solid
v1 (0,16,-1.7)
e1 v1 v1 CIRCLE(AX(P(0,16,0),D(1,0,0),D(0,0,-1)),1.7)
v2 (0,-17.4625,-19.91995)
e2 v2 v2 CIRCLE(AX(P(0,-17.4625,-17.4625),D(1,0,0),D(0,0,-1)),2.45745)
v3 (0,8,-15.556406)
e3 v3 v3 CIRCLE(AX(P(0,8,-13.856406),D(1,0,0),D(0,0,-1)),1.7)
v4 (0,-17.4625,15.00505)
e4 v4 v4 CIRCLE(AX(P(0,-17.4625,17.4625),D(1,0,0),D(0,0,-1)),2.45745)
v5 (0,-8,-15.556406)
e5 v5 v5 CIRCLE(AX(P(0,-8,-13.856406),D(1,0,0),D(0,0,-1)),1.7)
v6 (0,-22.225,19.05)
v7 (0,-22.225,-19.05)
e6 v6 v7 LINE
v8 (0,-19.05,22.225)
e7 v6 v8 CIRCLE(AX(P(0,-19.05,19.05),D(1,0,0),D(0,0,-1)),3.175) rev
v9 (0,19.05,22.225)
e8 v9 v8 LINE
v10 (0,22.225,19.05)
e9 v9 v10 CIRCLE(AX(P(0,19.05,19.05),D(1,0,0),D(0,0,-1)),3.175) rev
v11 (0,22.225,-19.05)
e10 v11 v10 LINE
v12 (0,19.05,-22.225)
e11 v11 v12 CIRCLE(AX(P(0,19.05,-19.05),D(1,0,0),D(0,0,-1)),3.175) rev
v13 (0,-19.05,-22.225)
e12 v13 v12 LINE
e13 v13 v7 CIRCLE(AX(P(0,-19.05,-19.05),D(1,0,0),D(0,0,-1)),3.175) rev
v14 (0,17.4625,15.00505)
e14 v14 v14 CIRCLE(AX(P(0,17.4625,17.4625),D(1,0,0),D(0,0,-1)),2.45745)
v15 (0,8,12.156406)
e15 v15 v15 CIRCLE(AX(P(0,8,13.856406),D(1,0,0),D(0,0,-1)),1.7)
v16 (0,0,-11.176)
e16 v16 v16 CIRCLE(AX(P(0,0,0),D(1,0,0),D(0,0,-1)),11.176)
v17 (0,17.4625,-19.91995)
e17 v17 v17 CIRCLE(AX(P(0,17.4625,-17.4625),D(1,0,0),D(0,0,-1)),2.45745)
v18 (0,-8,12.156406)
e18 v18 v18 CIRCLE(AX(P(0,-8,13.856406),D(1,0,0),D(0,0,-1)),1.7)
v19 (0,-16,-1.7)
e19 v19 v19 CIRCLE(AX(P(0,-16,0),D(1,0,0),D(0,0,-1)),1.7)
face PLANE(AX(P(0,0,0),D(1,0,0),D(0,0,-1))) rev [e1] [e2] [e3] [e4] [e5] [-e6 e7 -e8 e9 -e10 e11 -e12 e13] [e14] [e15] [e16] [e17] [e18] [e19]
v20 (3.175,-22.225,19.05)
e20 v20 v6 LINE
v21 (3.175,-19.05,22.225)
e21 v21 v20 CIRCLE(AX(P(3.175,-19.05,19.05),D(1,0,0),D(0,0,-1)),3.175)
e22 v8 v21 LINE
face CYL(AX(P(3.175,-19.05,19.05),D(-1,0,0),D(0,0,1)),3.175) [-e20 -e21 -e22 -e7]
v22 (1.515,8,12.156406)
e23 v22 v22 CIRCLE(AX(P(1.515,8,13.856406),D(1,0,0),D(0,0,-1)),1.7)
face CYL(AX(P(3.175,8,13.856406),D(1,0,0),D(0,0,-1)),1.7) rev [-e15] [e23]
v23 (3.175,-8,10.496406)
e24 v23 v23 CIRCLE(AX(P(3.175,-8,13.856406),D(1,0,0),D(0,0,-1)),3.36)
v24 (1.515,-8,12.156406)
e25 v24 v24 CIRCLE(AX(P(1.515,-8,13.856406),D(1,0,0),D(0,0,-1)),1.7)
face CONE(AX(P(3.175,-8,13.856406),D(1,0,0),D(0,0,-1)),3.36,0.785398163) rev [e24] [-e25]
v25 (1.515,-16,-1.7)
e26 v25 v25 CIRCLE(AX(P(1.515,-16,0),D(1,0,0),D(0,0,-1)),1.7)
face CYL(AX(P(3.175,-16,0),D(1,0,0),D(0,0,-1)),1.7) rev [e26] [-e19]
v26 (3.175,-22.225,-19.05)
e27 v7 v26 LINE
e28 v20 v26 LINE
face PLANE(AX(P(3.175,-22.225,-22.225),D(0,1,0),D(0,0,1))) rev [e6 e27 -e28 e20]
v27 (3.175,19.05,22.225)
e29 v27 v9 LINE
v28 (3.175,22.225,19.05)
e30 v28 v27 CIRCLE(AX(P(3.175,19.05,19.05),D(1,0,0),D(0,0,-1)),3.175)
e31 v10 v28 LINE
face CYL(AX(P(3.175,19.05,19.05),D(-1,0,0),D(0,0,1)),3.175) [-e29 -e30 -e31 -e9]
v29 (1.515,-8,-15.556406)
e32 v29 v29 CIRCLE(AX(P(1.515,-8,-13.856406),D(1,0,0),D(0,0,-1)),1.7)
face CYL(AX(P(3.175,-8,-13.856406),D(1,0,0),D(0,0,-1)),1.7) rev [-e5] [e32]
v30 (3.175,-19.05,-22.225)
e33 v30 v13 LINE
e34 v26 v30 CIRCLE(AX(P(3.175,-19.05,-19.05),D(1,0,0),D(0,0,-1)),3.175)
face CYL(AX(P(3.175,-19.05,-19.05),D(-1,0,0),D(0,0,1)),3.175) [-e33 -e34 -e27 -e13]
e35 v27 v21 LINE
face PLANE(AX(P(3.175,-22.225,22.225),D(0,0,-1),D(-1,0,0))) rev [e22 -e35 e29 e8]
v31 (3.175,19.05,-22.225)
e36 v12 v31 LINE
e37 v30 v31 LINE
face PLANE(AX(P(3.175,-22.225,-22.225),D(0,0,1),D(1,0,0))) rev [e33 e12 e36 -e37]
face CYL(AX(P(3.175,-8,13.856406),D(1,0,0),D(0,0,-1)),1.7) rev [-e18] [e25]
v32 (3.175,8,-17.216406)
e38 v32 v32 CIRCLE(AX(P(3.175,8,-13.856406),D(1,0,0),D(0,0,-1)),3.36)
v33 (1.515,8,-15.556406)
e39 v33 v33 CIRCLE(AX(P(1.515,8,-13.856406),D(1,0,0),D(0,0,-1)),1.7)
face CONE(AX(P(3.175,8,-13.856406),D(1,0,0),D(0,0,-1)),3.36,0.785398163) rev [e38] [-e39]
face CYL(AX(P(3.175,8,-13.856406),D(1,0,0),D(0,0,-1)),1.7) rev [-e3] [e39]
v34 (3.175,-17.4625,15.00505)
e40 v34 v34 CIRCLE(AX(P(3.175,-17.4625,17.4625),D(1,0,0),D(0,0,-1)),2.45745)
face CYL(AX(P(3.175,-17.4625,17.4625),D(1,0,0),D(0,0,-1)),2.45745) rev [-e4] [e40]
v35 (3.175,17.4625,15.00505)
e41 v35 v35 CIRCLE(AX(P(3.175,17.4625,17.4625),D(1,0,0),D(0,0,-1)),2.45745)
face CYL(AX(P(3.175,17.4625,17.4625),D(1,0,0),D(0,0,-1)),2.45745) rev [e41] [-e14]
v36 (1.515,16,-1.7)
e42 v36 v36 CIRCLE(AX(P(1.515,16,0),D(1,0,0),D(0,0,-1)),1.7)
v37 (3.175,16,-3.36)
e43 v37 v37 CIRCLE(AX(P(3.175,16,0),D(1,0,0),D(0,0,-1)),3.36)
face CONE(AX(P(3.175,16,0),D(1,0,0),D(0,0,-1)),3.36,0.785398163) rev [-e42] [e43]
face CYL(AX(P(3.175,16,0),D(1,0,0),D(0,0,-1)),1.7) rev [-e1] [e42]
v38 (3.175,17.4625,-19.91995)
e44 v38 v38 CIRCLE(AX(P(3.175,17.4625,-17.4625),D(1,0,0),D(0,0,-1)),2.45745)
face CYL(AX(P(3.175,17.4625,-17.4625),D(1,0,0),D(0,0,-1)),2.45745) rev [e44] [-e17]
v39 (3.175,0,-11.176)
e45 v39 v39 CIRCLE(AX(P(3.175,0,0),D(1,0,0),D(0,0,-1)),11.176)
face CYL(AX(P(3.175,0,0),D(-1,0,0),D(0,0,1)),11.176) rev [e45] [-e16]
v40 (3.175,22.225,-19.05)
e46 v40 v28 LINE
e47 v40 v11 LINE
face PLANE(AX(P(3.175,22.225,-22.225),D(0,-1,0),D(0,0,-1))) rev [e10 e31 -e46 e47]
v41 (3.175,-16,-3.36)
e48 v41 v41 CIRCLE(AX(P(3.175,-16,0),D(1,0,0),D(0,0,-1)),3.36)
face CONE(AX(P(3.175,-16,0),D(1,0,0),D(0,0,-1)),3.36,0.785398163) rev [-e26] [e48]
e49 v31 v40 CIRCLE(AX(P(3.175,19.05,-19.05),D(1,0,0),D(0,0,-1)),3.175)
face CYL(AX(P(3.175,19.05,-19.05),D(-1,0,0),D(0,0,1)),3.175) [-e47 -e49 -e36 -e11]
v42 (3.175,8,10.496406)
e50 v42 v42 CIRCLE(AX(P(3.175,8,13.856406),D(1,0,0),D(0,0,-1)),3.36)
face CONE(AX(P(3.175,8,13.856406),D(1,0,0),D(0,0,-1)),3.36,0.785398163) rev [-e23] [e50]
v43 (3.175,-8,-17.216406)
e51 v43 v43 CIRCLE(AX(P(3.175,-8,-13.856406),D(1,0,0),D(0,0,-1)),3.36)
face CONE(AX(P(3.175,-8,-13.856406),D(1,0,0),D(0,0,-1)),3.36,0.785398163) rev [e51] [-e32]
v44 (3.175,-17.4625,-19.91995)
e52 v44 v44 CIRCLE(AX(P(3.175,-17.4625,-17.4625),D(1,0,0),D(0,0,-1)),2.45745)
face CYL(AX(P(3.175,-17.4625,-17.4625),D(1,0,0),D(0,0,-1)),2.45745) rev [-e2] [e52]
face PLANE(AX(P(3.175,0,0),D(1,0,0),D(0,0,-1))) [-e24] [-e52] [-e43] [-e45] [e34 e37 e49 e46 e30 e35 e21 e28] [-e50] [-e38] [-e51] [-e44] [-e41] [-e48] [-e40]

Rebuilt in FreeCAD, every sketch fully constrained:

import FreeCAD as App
import Part
import Sketcher

V = App.Vector
Q = App.Units.Quantity


def edges_at(feature, points):
    """Names of the edges that pass closest to the given points."""
    edges = feature.Shape.Edges
    near = lambda p: min(range(len(edges)), key=lambda i: edges[i].distToShape(Part.Vertex(*p))[0])
    return sorted({f"Edge{near(p) + 1}" for p in points})


def add_polygon(sketch, points):
    """Adds a closed chain of lines whose ends are joined by coincident constraints."""
    first, n = sketch.GeometryCount, len(points)
    for a, b in zip(points, points[1:] + points[:1]):
        sketch.addGeometry(Part.LineSegment(App.Vector(*a, 0), App.Vector(*b, 0)), False)
    for i in range(n):
        sketch.addConstraint(Sketcher.Constraint("Coincident", first + i, 2, first + (i + 1) % n, 1))

doc = App.newDocument("Part")
params = doc.addObject("Spreadsheet::Sheet", "Params")
for row, (alias, value) in enumerate([
    ("sketch1_diameter", "0.88 in"),
    ("sketch1_width", "1.75 in"),
    ("pad1_length", "0.125 in"),
    ("hole_diameter", "0.1935 in"),
    ("hole_depth", "0.125 in"),
    ("sketch3_width", "0.125 in"),
    ("groove_angle", "360 deg"),
    ("linearpattern_pitch", "16 mm"),
    ("linearpattern2_pitch", "27.712813 mm"),
    ("linearpattern3_pitch", "32 mm"),
    ("linearpattern4_pitch", "27.712813 mm"),
    ("linearpattern5_pitch", "16 mm"),
    ("fillet_radius", "0.125 in"),
], start=1):
    params.set(f"A{row}", alias)
    params.set(f"B{row}", "=" + value)
    params.setAlias(f"B{row}", alias)

body = doc.addObject("PartDesign::Body", "Body")

# Sketch on YZ plane
sketch1 = body.newObject("Sketcher::SketchObject", "Sketch")
sketch1.AttachmentSupport = (doc.getObject("YZ_Plane"), [""])
sketch1.MapMode = "FlatFace"
add_polygon(sketch1, [(22, 22), (-22, 22), (-22, -22), (22, -22)])  # lines 0-3
sketch1.addGeometry(Part.Circle(V(0, 0, 0), V(0, 0, 1), 11), False)  # 4
sketch1.addConstraint([
    Sketcher.Constraint("Horizontal", 0),
    Sketcher.Constraint("Vertical", 1),
    Sketcher.Constraint("Horizontal", 2),
    Sketcher.Constraint("Vertical", 3),
    Sketcher.Constraint("Coincident", 4, 3, -1, 1),
    Sketcher.Constraint("Symmetric", 0, 2, 2, 2, -1, 1),
    Sketcher.Constraint("Equal", 2, 1),
    Sketcher.Constraint("Diameter", 4, Q("0.88 in")),
    Sketcher.Constraint("DistanceX", 0, 2, 0, 1, Q("1.75 in")),
])
sketch1.setExpression("Constraints[11]", "Params.sketch1_diameter")
sketch1.setExpression("Constraints[12]", "Params.sketch1_width")
pad1 = body.newObject("PartDesign::Pad", "Pad")
pad1.Profile = sketch1
pad1.setExpression("Length", "Params.pad1_length")

# Sketch on YZ plane
sketch2 = body.newObject("Sketcher::SketchObject", "Sketch001")
sketch2.AttachmentSupport = (doc.getObject("YZ_Plane"), [""])
sketch2.MapMode = "FlatFace"
sketch2.AttachmentOffset = App.Placement(V(0, 0, 0.125 * 25.4), App.Rotation())
sketch2.addGeometry([
    Part.Circle(V(17.5, 17.5, 0), V(0, 0, 1), 2.5),
    Part.Circle(V(17.5, -17.5, 0), V(0, 0, 1), 2.5),
    Part.Circle(V(-17.5, -17.5, 0), V(0, 0, 1), 2.5),
    Part.Circle(V(-17.5, 17.5, 0), V(0, 0, 1), 2.5),
], False)
sketch2.addConstraint([
    Sketcher.Constraint("Equal", 0, 1),
    Sketcher.Constraint("Equal", 1, 2),
    Sketcher.Constraint("Equal", 2, 3),
    Sketcher.Constraint("Symmetric", 0, 3, 2, 3, -1, 1),
    Sketcher.Constraint("Symmetric", 1, 3, 3, 3, -1, 1),
    Sketcher.Constraint("Symmetric", 1, 3, 2, 3, -2),
    Sketcher.Constraint("Diameter", 0, Q("0.1935 in")),
    Sketcher.Constraint("DistanceX", -1, 1, 0, 3, Q("0.6875 in")),
    Sketcher.Constraint("DistanceY", -1, 1, 0, 3, Q("0.6875 in")),
])
doc.recompute()
hole = body.newObject("PartDesign::Hole", "Hole")
hole.Profile = sketch2
hole.ThreadType = "None"
hole.setExpression("Diameter", "Params.hole_diameter")
hole.DepthType = "Dimension"
hole.setExpression("Depth", "Params.hole_depth")
hole.DrillPoint = "Flat"

# Sketch on XZ plane
sketch3 = body.newObject("Sketcher::SketchObject", "Sketch002")
sketch3.AttachmentSupport = (doc.getObject("XZ_Plane"), [""])
sketch3.MapMode = "FlatFace"
sketch3.AttachmentOffset = App.Placement(V(0, 0, -8), App.Rotation())
add_polygon(sketch3, [(0, 13.9), (3.2, 13.9), (3.2, 10.5), (1.5, 12.2), (0, 12.2)])  # lines 0-4
sketch3.addGeometry(Part.LineSegment(V(3.2, 13.9, 0), V(0, 13.9, 0)), True)  # axis
sketch3.addConstraint([
    Sketcher.Constraint("Horizontal", 0),
    Sketcher.Constraint("Vertical", 1),
    Sketcher.Constraint("Horizontal", 3),
    Sketcher.Constraint("Vertical", 4),
    Sketcher.Constraint("Horizontal", 5),
    Sketcher.Constraint("Coincident", 5, 1, 0, 2),
    Sketcher.Constraint("PointOnObject", 3, 2, -2),
    Sketcher.Constraint("PointOnObject", 5, 2, -2),
    Sketcher.Constraint("Angle", 2, Q("135 deg")),
    Sketcher.Constraint("DistanceX", 0, 1, 0, 2, Q("0.125 in")),
    Sketcher.Constraint("DistanceX", 3, 2, 3, 1, 1.515),
    Sketcher.Constraint("DistanceY", 1, 2, 1, 1, 3.36),
    Sketcher.Constraint("DistanceY", -1, 1, 0, 2, 13.856406),
])
sketch3.setExpression("Constraints[14]", "Params.sketch3_width")
groove = body.newObject("PartDesign::Groove", "Groove")
groove.Profile = sketch3
groove.ReferenceAxis = (sketch3, ["Axis0"])
groove.setExpression("Angle", "Params.groove_angle")
doc.recompute()

datumline = body.newObject("PartDesign::Line", "DatumLine")
datumline.Placement = App.Placement(V(0, 0, 0), App.Rotation(V(0, 0, 1), V(0, 0.5, -0.866025404)))
linearpattern = body.newObject("PartDesign::LinearPattern", "LinearPattern")
linearpattern.Originals = [groove]
linearpattern.Direction = (datumline, [""])
linearpattern.Mode = "offset"
linearpattern.setExpression("Offset", "Params.linearpattern_pitch")
linearpattern.Occurrences = 2
body.Tip = linearpattern
doc.recompute()

linearpattern2 = body.newObject("PartDesign::LinearPattern", "LinearPattern001")
linearpattern2.Originals = [groove]
linearpattern2.Direction = (doc.getObject("Z_Axis"), [""])
linearpattern2.Mode = "offset"
linearpattern2.setExpression("Offset", "Params.linearpattern2_pitch")
linearpattern2.Occurrences = 2
linearpattern2.Reversed = True
body.Tip = linearpattern2
doc.recompute()

datumline2 = body.newObject("PartDesign::Line", "DatumLine001")
datumline2.Placement = App.Placement(V(0, 0, 0), App.Rotation(V(0, 0, 1), V(0, -0.5, -0.866025404)))
linearpattern3 = body.newObject("PartDesign::LinearPattern", "LinearPattern002")
linearpattern3.Originals = [groove]
linearpattern3.Direction = (datumline2, [""])
linearpattern3.Mode = "offset"
linearpattern3.setExpression("Offset", "Params.linearpattern3_pitch")
linearpattern3.Occurrences = 2
body.Tip = linearpattern3
doc.recompute()

datumline3 = body.newObject("PartDesign::Line", "DatumLine002")
datumline3.Placement = App.Placement(V(0, 0, 0), App.Rotation(V(0, 0, 1), V(0, -0.866025404, -0.5)))
linearpattern4 = body.newObject("PartDesign::LinearPattern", "LinearPattern003")
linearpattern4.Originals = [groove]
linearpattern4.Direction = (datumline3, [""])
linearpattern4.Mode = "offset"
linearpattern4.setExpression("Offset", "Params.linearpattern4_pitch")
linearpattern4.Occurrences = 2
body.Tip = linearpattern4
doc.recompute()

linearpattern5 = body.newObject("PartDesign::LinearPattern", "LinearPattern004")
linearpattern5.Originals = [groove]
linearpattern5.Direction = (doc.getObject("Y_Axis"), [""])
linearpattern5.Mode = "offset"
linearpattern5.setExpression("Offset", "Params.linearpattern5_pitch")
linearpattern5.Occurrences = 2
linearpattern5.Reversed = True
body.Tip = linearpattern5
doc.recompute()

fillet = body.newObject("PartDesign::Fillet", "Fillet")
fillet.Base = (linearpattern5, edges_at(linearpattern5, [
    (1.587, 22.225, 22.225),
    (1.587, 22.225, -22.225),
    (1.587, -22.225, -22.225),
    (1.587, -22.225, 22.225),
]))
fillet.setExpression("Radius", "Params.fillet_radius")

doc.recompute()
